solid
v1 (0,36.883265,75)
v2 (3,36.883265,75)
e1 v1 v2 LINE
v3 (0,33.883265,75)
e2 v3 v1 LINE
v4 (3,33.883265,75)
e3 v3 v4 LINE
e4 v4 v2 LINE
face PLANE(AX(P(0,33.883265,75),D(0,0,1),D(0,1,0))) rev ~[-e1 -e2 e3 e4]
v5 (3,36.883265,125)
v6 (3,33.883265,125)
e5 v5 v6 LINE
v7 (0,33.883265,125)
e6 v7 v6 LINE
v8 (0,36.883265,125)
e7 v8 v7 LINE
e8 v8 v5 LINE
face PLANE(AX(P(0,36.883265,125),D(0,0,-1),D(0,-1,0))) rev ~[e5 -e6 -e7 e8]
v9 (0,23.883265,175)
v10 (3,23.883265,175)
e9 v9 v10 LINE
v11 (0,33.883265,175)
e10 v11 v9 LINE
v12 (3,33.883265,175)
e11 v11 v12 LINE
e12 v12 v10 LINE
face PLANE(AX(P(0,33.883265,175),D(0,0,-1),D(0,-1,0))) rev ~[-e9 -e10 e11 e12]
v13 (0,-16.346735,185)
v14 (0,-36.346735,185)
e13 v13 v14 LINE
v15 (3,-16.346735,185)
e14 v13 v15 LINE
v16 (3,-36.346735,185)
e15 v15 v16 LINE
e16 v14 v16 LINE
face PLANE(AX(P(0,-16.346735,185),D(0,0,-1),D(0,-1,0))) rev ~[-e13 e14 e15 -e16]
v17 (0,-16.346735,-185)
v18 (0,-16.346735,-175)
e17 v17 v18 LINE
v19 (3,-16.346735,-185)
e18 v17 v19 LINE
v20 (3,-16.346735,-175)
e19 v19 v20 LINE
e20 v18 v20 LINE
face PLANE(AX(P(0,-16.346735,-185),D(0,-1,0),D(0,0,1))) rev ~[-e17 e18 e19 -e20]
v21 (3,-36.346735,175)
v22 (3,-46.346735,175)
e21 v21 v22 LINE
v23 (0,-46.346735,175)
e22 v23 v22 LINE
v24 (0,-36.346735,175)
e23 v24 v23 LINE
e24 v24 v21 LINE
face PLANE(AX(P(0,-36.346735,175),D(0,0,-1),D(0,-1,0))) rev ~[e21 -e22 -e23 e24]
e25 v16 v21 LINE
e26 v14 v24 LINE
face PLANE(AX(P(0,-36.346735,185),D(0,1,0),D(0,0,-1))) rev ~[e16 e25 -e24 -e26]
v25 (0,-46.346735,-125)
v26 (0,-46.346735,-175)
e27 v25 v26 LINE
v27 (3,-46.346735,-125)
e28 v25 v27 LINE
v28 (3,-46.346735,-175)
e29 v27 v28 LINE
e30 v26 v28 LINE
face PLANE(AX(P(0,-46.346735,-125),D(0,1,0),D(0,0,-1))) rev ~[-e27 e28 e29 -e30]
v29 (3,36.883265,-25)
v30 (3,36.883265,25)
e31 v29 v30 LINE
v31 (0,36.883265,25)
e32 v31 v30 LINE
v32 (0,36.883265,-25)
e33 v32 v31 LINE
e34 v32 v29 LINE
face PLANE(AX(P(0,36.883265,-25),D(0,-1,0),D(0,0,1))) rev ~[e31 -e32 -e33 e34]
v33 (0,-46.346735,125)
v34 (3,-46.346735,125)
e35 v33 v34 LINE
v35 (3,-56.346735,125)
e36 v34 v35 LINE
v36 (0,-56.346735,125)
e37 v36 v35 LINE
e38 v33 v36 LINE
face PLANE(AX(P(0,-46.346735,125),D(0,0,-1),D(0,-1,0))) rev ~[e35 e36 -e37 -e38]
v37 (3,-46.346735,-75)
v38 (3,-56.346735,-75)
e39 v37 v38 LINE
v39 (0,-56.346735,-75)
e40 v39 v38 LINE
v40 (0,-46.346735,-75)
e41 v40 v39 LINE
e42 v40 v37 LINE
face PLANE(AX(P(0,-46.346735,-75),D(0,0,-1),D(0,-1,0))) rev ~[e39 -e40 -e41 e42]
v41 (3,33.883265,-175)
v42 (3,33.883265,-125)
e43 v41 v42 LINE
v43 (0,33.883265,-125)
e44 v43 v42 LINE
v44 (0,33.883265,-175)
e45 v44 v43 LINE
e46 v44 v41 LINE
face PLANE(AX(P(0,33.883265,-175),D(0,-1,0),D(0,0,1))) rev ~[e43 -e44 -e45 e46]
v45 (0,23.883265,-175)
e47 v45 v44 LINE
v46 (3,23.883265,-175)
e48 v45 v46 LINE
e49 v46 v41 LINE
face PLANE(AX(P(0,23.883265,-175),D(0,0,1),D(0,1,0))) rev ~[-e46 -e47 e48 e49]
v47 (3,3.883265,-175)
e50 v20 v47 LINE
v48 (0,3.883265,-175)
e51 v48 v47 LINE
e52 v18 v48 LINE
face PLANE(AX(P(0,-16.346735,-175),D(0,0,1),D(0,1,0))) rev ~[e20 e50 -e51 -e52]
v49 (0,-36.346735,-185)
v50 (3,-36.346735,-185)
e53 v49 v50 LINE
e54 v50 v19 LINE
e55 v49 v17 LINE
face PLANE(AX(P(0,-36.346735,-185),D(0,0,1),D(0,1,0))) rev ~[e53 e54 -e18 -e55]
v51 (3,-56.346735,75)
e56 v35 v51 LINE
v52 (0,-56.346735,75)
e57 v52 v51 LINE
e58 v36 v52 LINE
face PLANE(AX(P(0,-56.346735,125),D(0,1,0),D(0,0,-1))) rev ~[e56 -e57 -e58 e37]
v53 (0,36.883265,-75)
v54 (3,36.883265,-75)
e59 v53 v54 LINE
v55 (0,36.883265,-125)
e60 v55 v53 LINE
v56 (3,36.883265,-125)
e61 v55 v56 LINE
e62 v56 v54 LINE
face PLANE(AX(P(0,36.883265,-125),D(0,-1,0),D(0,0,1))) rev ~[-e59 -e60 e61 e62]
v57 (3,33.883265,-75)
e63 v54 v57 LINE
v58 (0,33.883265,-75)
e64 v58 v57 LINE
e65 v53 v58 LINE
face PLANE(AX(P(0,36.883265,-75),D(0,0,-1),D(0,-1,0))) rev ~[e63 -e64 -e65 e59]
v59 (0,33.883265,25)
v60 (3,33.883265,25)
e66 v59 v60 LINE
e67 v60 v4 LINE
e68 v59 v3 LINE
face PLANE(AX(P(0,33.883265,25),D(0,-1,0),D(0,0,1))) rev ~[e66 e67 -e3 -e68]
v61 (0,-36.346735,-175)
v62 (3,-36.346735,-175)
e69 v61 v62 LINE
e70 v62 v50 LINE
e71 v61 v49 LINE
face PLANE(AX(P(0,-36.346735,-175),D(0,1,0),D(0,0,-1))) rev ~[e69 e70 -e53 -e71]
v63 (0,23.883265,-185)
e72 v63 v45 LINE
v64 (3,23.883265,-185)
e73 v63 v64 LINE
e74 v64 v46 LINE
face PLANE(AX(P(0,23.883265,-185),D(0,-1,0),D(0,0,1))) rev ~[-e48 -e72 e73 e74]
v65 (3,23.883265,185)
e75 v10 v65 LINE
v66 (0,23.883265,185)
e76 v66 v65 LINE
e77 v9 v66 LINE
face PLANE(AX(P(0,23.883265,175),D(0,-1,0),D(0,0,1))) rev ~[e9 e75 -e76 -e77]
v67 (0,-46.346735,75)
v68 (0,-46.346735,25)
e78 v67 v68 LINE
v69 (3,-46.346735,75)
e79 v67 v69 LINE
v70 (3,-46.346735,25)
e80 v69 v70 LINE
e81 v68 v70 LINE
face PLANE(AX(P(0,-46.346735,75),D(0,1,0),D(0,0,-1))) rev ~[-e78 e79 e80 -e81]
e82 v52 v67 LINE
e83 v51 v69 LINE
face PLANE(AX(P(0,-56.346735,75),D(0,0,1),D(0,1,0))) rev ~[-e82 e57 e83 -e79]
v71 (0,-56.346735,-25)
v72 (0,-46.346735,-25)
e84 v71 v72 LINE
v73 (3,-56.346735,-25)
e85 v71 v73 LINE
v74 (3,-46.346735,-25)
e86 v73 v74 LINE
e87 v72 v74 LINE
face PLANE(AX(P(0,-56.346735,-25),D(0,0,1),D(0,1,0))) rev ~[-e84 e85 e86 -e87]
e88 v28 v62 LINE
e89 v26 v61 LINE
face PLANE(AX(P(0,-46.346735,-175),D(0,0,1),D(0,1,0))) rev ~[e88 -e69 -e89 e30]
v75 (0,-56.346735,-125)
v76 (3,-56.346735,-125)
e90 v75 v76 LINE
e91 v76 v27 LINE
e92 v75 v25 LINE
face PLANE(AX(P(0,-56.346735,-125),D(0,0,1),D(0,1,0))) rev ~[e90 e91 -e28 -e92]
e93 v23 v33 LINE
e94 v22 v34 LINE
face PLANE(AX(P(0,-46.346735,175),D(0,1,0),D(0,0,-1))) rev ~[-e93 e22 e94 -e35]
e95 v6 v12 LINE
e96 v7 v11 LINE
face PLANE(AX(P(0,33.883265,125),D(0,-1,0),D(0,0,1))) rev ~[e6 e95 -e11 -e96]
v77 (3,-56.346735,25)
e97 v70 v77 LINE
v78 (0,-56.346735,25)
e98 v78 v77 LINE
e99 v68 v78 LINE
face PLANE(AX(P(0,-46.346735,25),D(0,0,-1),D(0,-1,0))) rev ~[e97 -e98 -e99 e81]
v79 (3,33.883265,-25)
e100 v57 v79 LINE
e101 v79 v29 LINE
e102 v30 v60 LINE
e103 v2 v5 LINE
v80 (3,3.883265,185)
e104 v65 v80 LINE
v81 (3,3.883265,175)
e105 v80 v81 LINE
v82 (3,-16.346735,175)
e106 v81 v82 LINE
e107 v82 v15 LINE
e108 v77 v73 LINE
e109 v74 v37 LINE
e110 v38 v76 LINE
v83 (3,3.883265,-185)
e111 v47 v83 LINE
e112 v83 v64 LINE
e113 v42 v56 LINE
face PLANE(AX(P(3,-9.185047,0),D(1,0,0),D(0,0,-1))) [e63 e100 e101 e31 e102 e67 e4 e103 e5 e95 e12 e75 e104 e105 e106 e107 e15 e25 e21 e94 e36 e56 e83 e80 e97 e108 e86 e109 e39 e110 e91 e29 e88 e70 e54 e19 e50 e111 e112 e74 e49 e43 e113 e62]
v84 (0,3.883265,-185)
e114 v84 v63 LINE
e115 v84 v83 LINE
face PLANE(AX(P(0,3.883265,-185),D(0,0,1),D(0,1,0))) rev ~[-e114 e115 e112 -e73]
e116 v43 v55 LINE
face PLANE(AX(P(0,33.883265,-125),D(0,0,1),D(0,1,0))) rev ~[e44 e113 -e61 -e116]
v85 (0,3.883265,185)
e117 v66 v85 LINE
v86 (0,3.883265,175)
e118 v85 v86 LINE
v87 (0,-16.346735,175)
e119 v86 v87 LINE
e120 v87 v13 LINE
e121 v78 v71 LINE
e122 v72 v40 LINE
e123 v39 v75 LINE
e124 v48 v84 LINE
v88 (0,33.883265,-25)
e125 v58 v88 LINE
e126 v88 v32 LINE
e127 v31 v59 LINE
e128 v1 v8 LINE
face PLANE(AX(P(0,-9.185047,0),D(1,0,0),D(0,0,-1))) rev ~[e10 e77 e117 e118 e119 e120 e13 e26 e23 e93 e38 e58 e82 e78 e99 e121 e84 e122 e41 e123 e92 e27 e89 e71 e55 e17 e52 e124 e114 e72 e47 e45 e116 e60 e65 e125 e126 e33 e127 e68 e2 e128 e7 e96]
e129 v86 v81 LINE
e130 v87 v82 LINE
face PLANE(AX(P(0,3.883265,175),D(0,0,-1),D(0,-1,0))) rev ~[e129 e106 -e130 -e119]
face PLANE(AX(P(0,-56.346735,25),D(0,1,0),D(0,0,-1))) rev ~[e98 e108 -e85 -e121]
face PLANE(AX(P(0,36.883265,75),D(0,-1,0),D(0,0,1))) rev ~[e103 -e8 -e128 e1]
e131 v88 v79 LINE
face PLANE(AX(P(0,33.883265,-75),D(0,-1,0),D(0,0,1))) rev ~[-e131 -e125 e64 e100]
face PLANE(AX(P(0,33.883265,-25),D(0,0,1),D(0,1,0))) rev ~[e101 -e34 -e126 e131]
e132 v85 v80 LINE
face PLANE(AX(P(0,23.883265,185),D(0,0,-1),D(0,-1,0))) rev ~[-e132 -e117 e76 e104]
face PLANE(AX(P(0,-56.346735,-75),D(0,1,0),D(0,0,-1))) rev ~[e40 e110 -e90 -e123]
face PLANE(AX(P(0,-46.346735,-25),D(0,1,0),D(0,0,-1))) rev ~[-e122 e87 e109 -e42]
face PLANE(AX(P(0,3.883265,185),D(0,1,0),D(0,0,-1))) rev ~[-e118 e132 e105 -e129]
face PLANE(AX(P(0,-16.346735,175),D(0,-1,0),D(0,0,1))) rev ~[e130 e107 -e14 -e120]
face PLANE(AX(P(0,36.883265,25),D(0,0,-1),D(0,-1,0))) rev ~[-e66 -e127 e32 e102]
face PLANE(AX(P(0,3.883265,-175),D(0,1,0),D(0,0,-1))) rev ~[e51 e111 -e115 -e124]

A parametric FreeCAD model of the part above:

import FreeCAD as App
import Part
import Sketcher

V = App.Vector
Q = App.Units.Quantity


def add_polygon(sketch, points):
    """Adds a closed chain of lines whose ends are joined by coincident constraints."""
    first, n = sketch.GeometryCount, len(points)
    for a, b in zip(points, points[1:] + points[:1]):
        sketch.addGeometry(Part.LineSegment(App.Vector(*a, 0), App.Vector(*b, 0)), False)
    for i in range(n):
        sketch.addConstraint(Sketcher.Constraint("Coincident", first + i, 2, first + (i + 1) % n, 1))

doc = App.newDocument("Part")
body = doc.addObject("PartDesign::Body", "Body")

# Sketch on YZ plane
sketch1 = body.newObject("Sketcher::SketchObject", "Sketch")
sketch1.AttachmentSupport = (doc.getObject("YZ_Plane"), [""])
sketch1.MapMode = "FlatFace"
add_polygon(sketch1, [(36.9, -125), (36.9, -75), (33.9, -75), (33.9, -25), (36.9, -25), (36.9, 25), (33.9, 25), (33.9, 75), (36.9, 75), (36.9, 125), (33.9, 125), (33.9, 175), (23.9, 175), (23.9, 185), (3.9, 185), (3.9, 175), (-16.3, 175), (-16.3, 185), (-36.3, 185), (-36.3, 175), (-46.3, 175), (-46.3, 125), (-56.3, 125), (-56.3, 75), (-46.3, 75), (-46.3, 25), (-56.3, 25), (-56.3, -25), (-46.3, -25), (-46.3, -75), (-56.3, -75), (-56.3, -125), (-46.3, -125), (-46.3, -175), (-36.3, -175), (-36.3, -185), (-16.3, -185), (-16.3, -175), (3.9, -175), (3.9, -185), (23.9, -185), (23.9, -175), (33.9, -175), (33.9, -125)])  # lines 0-43
sketch1.addConstraint([
    Sketcher.Constraint("Vertical", 0),
    Sketcher.Constraint("Horizontal", 1),
    Sketcher.Constraint("Vertical", 2),
    Sketcher.Constraint("Horizontal", 3),
    Sketcher.Constraint("Vertical", 4),
    Sketcher.Constraint("Horizontal", 5),
    Sketcher.Constraint("Vertical", 6),
    Sketcher.Constraint("Horizontal", 7),
    Sketcher.Constraint("Vertical", 8),
    Sketcher.Constraint("Horizontal", 9),
    Sketcher.Constraint("Vertical", 10),
    Sketcher.Constraint("Horizontal", 11),
    Sketcher.Constraint("Vertical", 12),
    Sketcher.Constraint("Horizontal", 13),
    Sketcher.Constraint("Vertical", 14),
    Sketcher.Constraint("Horizontal", 15),
    Sketcher.Constraint("Vertical", 16),
    Sketcher.Constraint("Horizontal", 17),
    Sketcher.Constraint("Vertical", 18),
    Sketcher.Constraint("Horizontal", 19),
    Sketcher.Constraint("Vertical", 20),
    Sketcher.Constraint("Horizontal", 21),
    Sketcher.Constraint("Vertical", 22),
    Sketcher.Constraint("Horizontal", 23),
    Sketcher.Constraint("Vertical", 24),
    Sketcher.Constraint("Horizontal", 25),
    Sketcher.Constraint("Vertical", 26),
    Sketcher.Constraint("Horizontal", 27),
    Sketcher.Constraint("Vertical", 28),
    Sketcher.Constraint("Horizontal", 29),
    Sketcher.Constraint("Vertical", 30),
    Sketcher.Constraint("Horizontal", 31),
    Sketcher.Constraint("Vertical", 32),
    Sketcher.Constraint("Horizontal", 33),
    Sketcher.Constraint("Vertical", 34),
    Sketcher.Constraint("Horizontal", 35),
    Sketcher.Constraint("Vertical", 36),
    Sketcher.Constraint("Horizontal", 37),
    Sketcher.Constraint("Vertical", 38),
    Sketcher.Constraint("Horizontal", 39),
    Sketcher.Constraint("Vertical", 40),
    Sketcher.Constraint("Horizontal", 41),
    Sketcher.Constraint("Vertical", 42),
    Sketcher.Constraint("Horizontal", 43),
    Sketcher.Constraint("Symmetric", 2, 2, 5, 2, -1),
    Sketcher.Constraint("Symmetric", 0, 2, 7, 2, -1),
    Sketcher.Constraint("Symmetric", 24, 2, 27, 2, -1),
    Sketcher.Constraint("Symmetric", 22, 2, 29, 2, -1),
    Sketcher.Constraint("Symmetric", 20, 2, 31, 2, -1),
    Sketcher.Constraint("Symmetric", 18, 2, 33, 2, -1),
    Sketcher.Constraint("Symmetric", 16, 2, 35, 2, -1),
    Sketcher.Constraint("Symmetric", 14, 2, 37, 2, -1),
    Sketcher.Constraint("Symmetric", 12, 2, 39, 2, -1),
    Sketcher.Constraint("Symmetric", 10, 2, 41, 2, -1),
    Sketcher.Constraint("Horizontal", 11, 2, 14, 2),
    Sketcher.Constraint("Horizontal", 13, 2, 16, 2),
    Sketcher.Constraint("Horizontal", 15, 2, 18, 2),
    Sketcher.Constraint("Horizontal", 9, 2, 20, 2),
    Sketcher.Constraint("Horizontal", 7, 2, 22, 2),
    Sketcher.Constraint("Horizontal", 5, 2, 24, 2),
    Sketcher.Constraint("Horizontal", 31, 2, 42, 2),
    Sketcher.Constraint("Vertical", 0, 2, 3, 2),
    Sketcher.Constraint("Vertical", 6, 2, 9, 2),
    Sketcher.Constraint("Vertical", 20, 2, 23, 2),
    Sketcher.Constraint("Vertical", 22, 2, 25, 2),
    Sketcher.Constraint("Equal", 13, 17),
    Sketcher.Constraint("Equal", 11, 19),
    Sketcher.Constraint("Equal", 19, 21),
    Sketcher.Constraint("Equal", 0, 2),
    Sketcher.Constraint("Equal", 2, 4),
    Sketcher.Constraint("Equal", 8, 10),
    Sketcher.Constraint("Equal", 41, 12),
    Sketcher.Constraint("DistanceX", 1, 2, 1, 1, Q("3 mm")),
    Sketcher.Constraint("DistanceX", 11, 2, 11, 1, Q("10 mm")),
    Sketcher.Constraint("DistanceX", 13, 2, 13, 1, Q("20 mm")),
    Sketcher.Constraint("DistanceY", 0, 1, 0, 2, Q("50 mm")),
    Sketcher.Constraint("DistanceX", 15, 2, 15, 1, Q("20.23 mm")),
    Sketcher.Constraint("DistanceX", -1, 1, 0, 2, Q("36.883265 mm")),
])
pad1 = body.newObject("PartDesign::Pad", "Pad")
pad1.Profile = sketch1
pad1.Length = 3

doc.recompute()
